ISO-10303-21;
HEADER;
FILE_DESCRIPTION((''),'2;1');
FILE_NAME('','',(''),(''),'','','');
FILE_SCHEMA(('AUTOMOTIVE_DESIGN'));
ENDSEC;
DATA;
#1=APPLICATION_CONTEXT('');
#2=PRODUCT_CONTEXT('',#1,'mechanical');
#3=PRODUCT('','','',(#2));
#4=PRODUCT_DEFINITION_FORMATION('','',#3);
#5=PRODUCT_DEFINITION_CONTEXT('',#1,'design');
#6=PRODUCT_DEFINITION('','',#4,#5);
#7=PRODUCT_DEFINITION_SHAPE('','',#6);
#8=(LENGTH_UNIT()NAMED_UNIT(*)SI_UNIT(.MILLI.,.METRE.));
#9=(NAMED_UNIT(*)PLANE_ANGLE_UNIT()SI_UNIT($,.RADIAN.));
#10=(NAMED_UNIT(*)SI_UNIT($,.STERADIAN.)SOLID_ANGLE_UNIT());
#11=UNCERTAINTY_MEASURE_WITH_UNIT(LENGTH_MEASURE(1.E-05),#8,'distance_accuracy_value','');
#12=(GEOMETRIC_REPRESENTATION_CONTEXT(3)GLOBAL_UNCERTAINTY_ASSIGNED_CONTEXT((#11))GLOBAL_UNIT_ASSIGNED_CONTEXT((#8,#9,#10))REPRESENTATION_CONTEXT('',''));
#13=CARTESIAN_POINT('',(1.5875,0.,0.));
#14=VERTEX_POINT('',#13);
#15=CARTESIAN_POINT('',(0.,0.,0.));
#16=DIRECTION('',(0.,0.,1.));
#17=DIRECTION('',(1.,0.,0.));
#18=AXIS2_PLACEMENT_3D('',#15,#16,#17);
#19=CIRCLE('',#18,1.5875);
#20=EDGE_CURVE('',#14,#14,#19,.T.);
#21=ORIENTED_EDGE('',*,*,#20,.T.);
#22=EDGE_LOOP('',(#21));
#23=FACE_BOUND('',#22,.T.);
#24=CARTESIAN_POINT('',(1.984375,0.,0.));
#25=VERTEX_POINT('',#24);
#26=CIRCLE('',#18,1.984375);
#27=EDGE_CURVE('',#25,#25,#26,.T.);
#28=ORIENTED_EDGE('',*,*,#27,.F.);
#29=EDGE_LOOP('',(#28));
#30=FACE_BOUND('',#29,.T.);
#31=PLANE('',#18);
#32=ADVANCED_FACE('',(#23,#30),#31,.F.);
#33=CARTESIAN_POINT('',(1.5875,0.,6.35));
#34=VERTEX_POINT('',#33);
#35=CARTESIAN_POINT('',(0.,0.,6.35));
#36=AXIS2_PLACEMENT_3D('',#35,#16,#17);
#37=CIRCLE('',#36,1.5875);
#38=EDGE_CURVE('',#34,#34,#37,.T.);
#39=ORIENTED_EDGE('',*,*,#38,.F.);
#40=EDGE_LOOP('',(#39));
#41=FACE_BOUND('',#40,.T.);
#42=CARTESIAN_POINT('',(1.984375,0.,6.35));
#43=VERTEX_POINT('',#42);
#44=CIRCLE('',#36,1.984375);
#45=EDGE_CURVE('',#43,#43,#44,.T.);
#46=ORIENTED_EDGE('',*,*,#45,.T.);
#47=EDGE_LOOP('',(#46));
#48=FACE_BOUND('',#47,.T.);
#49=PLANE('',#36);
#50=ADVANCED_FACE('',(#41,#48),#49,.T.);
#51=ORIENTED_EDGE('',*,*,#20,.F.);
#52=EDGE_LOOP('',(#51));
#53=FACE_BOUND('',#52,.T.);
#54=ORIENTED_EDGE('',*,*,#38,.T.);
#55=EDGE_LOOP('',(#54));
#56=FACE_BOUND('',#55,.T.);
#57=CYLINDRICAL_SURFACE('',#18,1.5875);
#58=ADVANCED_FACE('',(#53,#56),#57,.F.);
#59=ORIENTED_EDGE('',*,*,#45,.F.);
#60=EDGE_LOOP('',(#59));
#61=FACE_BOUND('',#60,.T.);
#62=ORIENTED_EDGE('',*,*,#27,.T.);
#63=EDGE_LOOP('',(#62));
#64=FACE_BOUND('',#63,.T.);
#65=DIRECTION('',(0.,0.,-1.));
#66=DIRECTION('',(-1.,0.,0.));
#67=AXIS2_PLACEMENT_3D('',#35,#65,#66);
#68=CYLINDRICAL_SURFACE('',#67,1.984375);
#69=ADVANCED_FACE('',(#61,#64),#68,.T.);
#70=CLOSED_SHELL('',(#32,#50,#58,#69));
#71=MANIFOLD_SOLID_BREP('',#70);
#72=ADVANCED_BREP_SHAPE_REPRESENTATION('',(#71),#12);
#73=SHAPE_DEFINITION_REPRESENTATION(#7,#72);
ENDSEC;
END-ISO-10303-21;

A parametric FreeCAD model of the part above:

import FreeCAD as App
import Part
import Sketcher

V = App.Vector
Q = App.Units.Quantity

doc = App.newDocument("Part")
body = doc.addObject("PartDesign::Body", "Body")

# Sketch on XY plane
sketch1 = doc.addObject("Sketcher::SketchObject", "Sketch")
body.addObject(sketch1)
sketch1.AttachmentSupport = (doc.XY_Plane, [""])
sketch1.MapMode = "FlatFace"
sketch1.addGeometry(Part.Circle(V(0, 0, 0), V(0, 0, 1), 1.984375), False)
sketch1.addConstraint(Sketcher.Constraint("Coincident", 0, 3, -1, 1))
sketch1.addConstraint(Sketcher.Constraint("Diameter", 0, Q("0.15625 in")))
pad1 = doc.addObject("PartDesign::Pad", "Pad")
body.addObject(pad1)
pad1.Profile = sketch1
pad1.Length = Q("0.25 in")

# Sketch on XY plane
sketch2 = doc.addObject("Sketcher::SketchObject", "Sketch001")
body.addObject(sketch2)
sketch2.AttachmentSupport = (doc.XY_Plane, [""])
sketch2.MapMode = "FlatFace"
sketch2.AttachmentOffset = App.Placement(V(0, 0, 0.25 * 25.4), App.Rotation())
sketch2.addGeometry(Part.Circle(V(0, 0, 0), V(0, 0, 1), 1.5875), False)
sketch2.addConstraint(Sketcher.Constraint("Coincident", 0, 3, -1, 1))
sketch2.addConstraint(Sketcher.Constraint("Diameter", 0, Q("0.125 in")))
pocket1 = doc.addObject("PartDesign::Pocket", "Pocket")
body.addObject(pocket1)
pocket1.Profile = sketch2
pocket1.Type = "ThroughAll"

doc.recompute()
